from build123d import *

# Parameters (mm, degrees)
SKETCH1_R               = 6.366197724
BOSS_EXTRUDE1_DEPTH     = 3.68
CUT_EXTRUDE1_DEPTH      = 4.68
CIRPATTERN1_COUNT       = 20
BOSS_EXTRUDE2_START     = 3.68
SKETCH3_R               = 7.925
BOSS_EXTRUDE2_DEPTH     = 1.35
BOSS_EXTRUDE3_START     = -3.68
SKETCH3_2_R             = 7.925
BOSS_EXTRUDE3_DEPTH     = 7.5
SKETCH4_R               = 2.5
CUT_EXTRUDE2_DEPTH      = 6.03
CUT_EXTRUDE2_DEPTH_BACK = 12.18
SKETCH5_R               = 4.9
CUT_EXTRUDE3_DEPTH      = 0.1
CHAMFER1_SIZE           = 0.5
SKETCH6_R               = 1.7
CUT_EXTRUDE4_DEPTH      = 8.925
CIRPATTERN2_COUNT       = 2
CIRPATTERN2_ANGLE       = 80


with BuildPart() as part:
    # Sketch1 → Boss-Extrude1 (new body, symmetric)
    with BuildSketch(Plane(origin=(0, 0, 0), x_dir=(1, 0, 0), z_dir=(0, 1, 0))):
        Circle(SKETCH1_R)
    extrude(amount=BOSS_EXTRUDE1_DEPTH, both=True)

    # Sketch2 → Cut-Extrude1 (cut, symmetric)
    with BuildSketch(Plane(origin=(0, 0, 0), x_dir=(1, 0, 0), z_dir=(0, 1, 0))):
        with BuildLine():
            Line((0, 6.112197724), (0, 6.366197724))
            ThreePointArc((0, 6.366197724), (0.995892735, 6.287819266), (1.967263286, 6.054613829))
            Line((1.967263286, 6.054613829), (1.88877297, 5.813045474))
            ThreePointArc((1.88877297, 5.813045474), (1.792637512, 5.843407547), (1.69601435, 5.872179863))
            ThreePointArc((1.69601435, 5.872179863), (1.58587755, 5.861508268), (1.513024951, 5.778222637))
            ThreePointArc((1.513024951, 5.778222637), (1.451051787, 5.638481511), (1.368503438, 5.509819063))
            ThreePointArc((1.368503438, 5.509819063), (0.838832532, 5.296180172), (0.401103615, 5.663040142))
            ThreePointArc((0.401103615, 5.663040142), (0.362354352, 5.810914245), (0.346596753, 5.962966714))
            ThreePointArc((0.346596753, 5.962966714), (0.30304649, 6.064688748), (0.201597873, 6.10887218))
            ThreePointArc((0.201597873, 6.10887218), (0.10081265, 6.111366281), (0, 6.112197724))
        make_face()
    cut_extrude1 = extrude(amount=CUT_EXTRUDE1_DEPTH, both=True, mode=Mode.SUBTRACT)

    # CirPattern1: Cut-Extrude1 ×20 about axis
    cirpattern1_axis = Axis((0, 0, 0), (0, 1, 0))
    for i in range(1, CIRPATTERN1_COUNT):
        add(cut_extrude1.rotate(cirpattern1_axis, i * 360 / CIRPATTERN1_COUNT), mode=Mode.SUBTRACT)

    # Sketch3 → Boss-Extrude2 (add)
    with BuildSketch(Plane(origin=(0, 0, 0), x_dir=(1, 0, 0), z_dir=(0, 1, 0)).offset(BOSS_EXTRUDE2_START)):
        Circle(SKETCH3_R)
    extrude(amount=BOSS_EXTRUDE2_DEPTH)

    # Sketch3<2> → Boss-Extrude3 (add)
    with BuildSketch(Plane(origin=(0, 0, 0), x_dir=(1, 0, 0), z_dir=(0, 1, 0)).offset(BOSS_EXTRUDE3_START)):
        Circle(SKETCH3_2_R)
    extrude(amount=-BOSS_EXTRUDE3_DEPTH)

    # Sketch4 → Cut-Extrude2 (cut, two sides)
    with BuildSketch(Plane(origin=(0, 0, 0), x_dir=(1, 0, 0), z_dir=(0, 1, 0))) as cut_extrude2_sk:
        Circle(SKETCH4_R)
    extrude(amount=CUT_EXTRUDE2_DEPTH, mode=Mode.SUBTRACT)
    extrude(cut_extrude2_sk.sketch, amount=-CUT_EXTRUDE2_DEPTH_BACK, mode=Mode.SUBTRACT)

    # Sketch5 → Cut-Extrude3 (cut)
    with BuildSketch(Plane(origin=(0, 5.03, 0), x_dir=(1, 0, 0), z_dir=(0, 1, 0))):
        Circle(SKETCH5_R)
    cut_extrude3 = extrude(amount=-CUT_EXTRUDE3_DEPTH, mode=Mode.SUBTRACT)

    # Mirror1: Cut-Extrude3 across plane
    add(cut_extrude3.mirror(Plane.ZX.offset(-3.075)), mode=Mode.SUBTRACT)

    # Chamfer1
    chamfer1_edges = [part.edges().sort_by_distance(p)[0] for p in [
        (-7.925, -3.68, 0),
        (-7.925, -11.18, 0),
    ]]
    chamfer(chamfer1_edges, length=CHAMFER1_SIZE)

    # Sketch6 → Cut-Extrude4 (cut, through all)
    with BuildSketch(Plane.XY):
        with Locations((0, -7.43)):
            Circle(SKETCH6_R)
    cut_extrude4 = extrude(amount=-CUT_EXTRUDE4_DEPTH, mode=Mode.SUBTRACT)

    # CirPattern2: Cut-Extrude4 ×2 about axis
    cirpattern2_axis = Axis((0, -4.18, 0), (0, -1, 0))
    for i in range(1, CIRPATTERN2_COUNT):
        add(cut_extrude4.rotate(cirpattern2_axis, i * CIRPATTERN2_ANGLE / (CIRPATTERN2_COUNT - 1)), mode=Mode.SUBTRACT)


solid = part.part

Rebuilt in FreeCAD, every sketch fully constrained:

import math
import FreeCAD as App
import Part
import Sketcher
from FreeCAD import Vector
Q = App.Units.Quantity


def edges_at(feature, points):
    """Names of the edges that pass closest to the given points."""
    edges = feature.Shape.Edges
    near = lambda p: min(range(len(edges)), key=lambda i: edges[i].distToShape(Part.Vertex(*p))[0])
    return sorted({f"Edge{near(p) + 1}" for p in points})

doc = App.newDocument("Part")
body = doc.addObject("PartDesign::Body", "Body")

# Sketch on XZ plane
sketch1 = body.newObject("Sketcher::SketchObject", "Sketch")
sketch1.AttachmentSupport = (doc.getObject("XZ_Plane"), [""])
sketch1.MapMode = "FlatFace"
sketch1.addGeometry(Part.Circle(Vector(0, 0, 0), Vector(0, 0, 1), 6), False)
sketch1.addConstraint(Sketcher.Constraint("Coincident", 0, 3, -1, 1))
sketch1.addConstraint(Sketcher.Constraint("Diameter", 0, 12.732395))
pad1 = body.newObject("PartDesign::Pad", "Pad")
pad1.Profile = sketch1
pad1.Length = 7.36
pad1.Midplane = True

# Sketch on XZ plane
sketch2 = body.newObject("Sketcher::SketchObject", "Sketch001")
sketch2.AttachmentSupport = (doc.getObject("XZ_Plane"), [""])
sketch2.MapMode = "FlatFace"
sketch2.addGeometry(Part.LineSegment(Vector(0, -6.37, 0), Vector(0, -6.11, 0)), False)
sketch2.addGeometry(Part.ArcOfCircle(Part.Circle(Vector(0, 0, 0), Vector(0, 0, 1), 6.11), math.radians(-90), math.radians(-88.11)), False)
sketch2.addGeometry(Part.ArcOfCircle(Part.Circle(Vector(0.2, -5.96, 0), Vector(0, 0, 1), 0.15), math.radians(-88), math.radians(-2)), False)
sketch2.addGeometry(Part.ArcOfCircle(Part.Circle(Vector(1.35, -5.99, 0), Vector(0, 0, 1), 1), math.radians(160.93), math.radians(178.47)), False)
sketch2.addGeometry(Part.ArcOfCircle(Part.Circle(Vector(0.93, -5.84, 0), Vector(0, 0, 1), 0.56), math.radians(37), math.radians(161)), False)
sketch2.addGeometry(Part.ArcOfCircle(Part.Circle(Vector(0.57, -6.11, 0), Vector(0, 0, 1), 1), math.radians(19.53), math.radians(37.07)), False)
sketch2.addGeometry(Part.ArcOfCircle(Part.Circle(Vector(1.65, -5.73, 0), Vector(0, 0, 1), 0.15), math.radians(-160), math.radians(-74)), False)
sketch2.addGeometry(Part.ArcOfCircle(Part.Circle(Vector(0, 0, 0), Vector(0, 0, 1), 6.11), math.radians(-73.89), math.radians(-72)), False)
sketch2.addGeometry(Part.LineSegment(Vector(1.89, -5.81, 0), Vector(1.97, -6.05, 0)), False)
sketch2.addGeometry(Part.ArcOfCircle(Part.Circle(Vector(0, 0, 0), Vector(0, 0, 1), 6.37), math.radians(-90), math.radians(-72)), False)
sketch2.addConstraint(Sketcher.Constraint("Coincident", 0, 2, 1, 1))
sketch2.addConstraint(Sketcher.Constraint("Tangent", 1, 2, 2, 1))
sketch2.addConstraint(Sketcher.Constraint("Tangent", 2, 2, 3, 2))
sketch2.addConstraint(Sketcher.Constraint("Tangent", 3, 1, 4, 2))
sketch2.addConstraint(Sketcher.Constraint("Tangent", 4, 1, 5, 2))
sketch2.addConstraint(Sketcher.Constraint("Tangent", 5, 1, 6, 1))
sketch2.addConstraint(Sketcher.Constraint("Tangent", 6, 2, 7, 1))
sketch2.addConstraint(Sketcher.Constraint("Coincident", 7, 2, 8, 1))
sketch2.addConstraint(Sketcher.Constraint("Coincident", 8, 2, 9, 2))
sketch2.addConstraint(Sketcher.Constraint("Coincident", 9, 1, 0, 1))
sketch2.addConstraint(Sketcher.Constraint("Vertical", 0))
sketch2.addConstraint(Sketcher.Constraint("Coincident", 1, 3, -1, 1))
sketch2.addConstraint(Sketcher.Constraint("Coincident", 7, 3, -1, 1))
sketch2.addConstraint(Sketcher.Constraint("Coincident", 9, 3, -1, 1))
sketch2.addConstraint(Sketcher.Constraint("Equal", 3, 5))
sketch2.addConstraint(Sketcher.Constraint("Equal", 2, 6))
sketch2.addConstraint(Sketcher.Constraint("Equal", 1, 7))
sketch2.addConstraint(Sketcher.Constraint("PointOnObject", 0, 2, -2))
sketch2.addConstraint(Sketcher.Constraint("Radius", 3, 1.0))
sketch2.addConstraint(Sketcher.Constraint("Angle", 8, Q("-72 deg")))
sketch2.addConstraint(Sketcher.Constraint("Radius", 2, 0.15))
sketch2.addConstraint(Sketcher.Constraint("Radius", 4, 0.555))
sketch2.addConstraint(Sketcher.Constraint("Radius", 1, 6.112201))
sketch2.addConstraint(Sketcher.Constraint("DistanceY", 0, 1, 0, 2, 0.254))
sketch2.addConstraint(Sketcher.Constraint("DistanceY", 5, 3, 1, 2, 0.0037))
sketch2.addConstraint(Sketcher.Constraint("DistanceY", 3, 3, 4, 1, 0.4799))
sketch2.addConstraint(Sketcher.Constraint("DistanceX", 3, 1, 4, 1, 0.9674))
sketch2.addConstraint(Sketcher.Constraint("DistanceX", -1, 1, 2, 3, 0.19665))
sketch2.addConstraint(Sketcher.Constraint("DistanceX", 6, 2, 7, 2, 0.192759))
pocket1 = body.newObject("PartDesign::Pocket", "Pocket")
pocket1.Profile = sketch2
pocket1.Length = 9.36
pocket1.Midplane = True
doc.recompute()

polarpattern = body.newObject("PartDesign::PolarPattern", "PolarPattern")
polarpattern.Originals = [pocket1]
polarpattern.Axis = (doc.getObject("Y_Axis"), [""])
polarpattern.Angle = 360
polarpattern.Occurrences = 20
body.Tip = polarpattern

# Sketch on XZ plane
sketch3 = body.newObject("Sketcher::SketchObject", "Sketch002")
sketch3.AttachmentSupport = (doc.getObject("XZ_Plane"), [""])
sketch3.MapMode = "FlatFace"
sketch3.AttachmentOffset = App.Placement(Vector(0, 0, -3.68), App.Rotation())
sketch3.addGeometry(Part.Circle(Vector(0, 0, 0), Vector(0, 0, 1), 8), False)
sketch3.addConstraint(Sketcher.Constraint("Coincident", 0, 3, -1, 1))
sketch3.addConstraint(Sketcher.Constraint("Diameter", 0, 15.85))
pad2 = body.newObject("PartDesign::Pad", "Pad001")
pad2.Profile = sketch3
pad2.Length = 1.35
pad2.Reversed = True

# Sketch on XZ plane
sketch4 = body.newObject("Sketcher::SketchObject", "Sketch003")
sketch4.AttachmentSupport = (doc.getObject("XZ_Plane"), [""])
sketch4.MapMode = "FlatFace"
sketch4.AttachmentOffset = App.Placement(Vector(0, 0, 3.68), App.Rotation())
sketch4.addGeometry(Part.Circle(Vector(0, 0, 0), Vector(0, 0, 1), 8), False)
sketch4.addConstraint(Sketcher.Constraint("Coincident", 0, 3, -1, 1))
sketch4.addConstraint(Sketcher.Constraint("Diameter", 0, 15.85))
pad3 = body.newObject("PartDesign::Pad", "Pad002")
pad3.Profile = sketch4
pad3.Length = 7.5

# Sketch on XZ plane
sketch5 = body.newObject("Sketcher::SketchObject", "Sketch004")
sketch5.AttachmentSupport = (doc.getObject("XZ_Plane"), [""])
sketch5.MapMode = "FlatFace"
sketch5.addGeometry(Part.Circle(Vector(0, 0, 0), Vector(0, 0, 1), 2.5), False)
sketch5.addConstraint(Sketcher.Constraint("Coincident", 0, 3, -1, 1))
sketch5.addConstraint(Sketcher.Constraint("Diameter", 0, 5.0))
pocket2 = body.newObject("PartDesign::Pocket", "Pocket001")
pocket2.Profile = sketch5
pocket2.Type = "ThroughAll"
pocket2.Midplane = True

# Sketch on XZ plane
sketch6 = body.newObject("Sketcher::SketchObject", "Sketch005")
sketch6.AttachmentSupport = (doc.getObject("XZ_Plane"), [""])
sketch6.MapMode = "FlatFace"
sketch6.AttachmentOffset = App.Placement(Vector(0, 0, -5.03), App.Rotation())
sketch6.addGeometry(Part.Circle(Vector(0, 0, 0), Vector(0, 0, 1), 4.9), False)
sketch6.addConstraint(Sketcher.Constraint("Coincident", 0, 3, -1, 1))
sketch6.addConstraint(Sketcher.Constraint("Diameter", 0, 9.8))
pocket3 = body.newObject("PartDesign::Pocket", "Pocket002")
pocket3.Profile = sketch6
pocket3.Length = 0.1
pocket3.Reversed = True
doc.recompute()

datumplane = body.newObject("PartDesign::Plane", "DatumPlane")
datumplane.AttachmentSupport = (doc.getObject("XZ_Plane"), [""])
datumplane.MapMode = "FlatFace"
datumplane.AttachmentOffset = App.Placement(Vector(0, 0, 3.075), App.Rotation())
mirrored = body.newObject("PartDesign::Mirrored", "Mirrored")
mirrored.Originals = [pocket3]
mirrored.MirrorPlane = (datumplane, [""])
body.Tip = mirrored
doc.recompute()

chamfer = body.newObject("PartDesign::Chamfer", "Chamfer")
chamfer.Base = (mirrored, edges_at(mirrored, [(-7.925, -3.68, 0), (-7.925, -11.18, 0)]))
chamfer.Size = 0.5

# Sketch on XY plane
sketch7 = body.newObject("Sketcher::SketchObject", "Sketch006")
sketch7.AttachmentSupport = (doc.getObject("XY_Plane"), [""])
sketch7.MapMode = "FlatFace"
sketch7.addGeometry(Part.Circle(Vector(0, -7.4, 0), Vector(0, 0, 1), 1.7), False)
sketch7.addConstraint(Sketcher.Constraint("PointOnObject", 0, 3, -2))
sketch7.addConstraint(Sketcher.Constraint("Diameter", 0, 3.4))
sketch7.addConstraint(Sketcher.Constraint("DistanceY", 0, 3, -1, 1, 7.43))
pocket4 = body.newObject("PartDesign::Pocket", "Pocket003")
pocket4.Profile = sketch7
pocket4.Type = "ThroughAll"
doc.recompute()

polarpattern2 = body.newObject("PartDesign::PolarPattern", "PolarPattern001")
polarpattern2.Originals = [pocket4]
polarpattern2.Axis = (doc.getObject("Y_Axis"), [""])
polarpattern2.Angle = 80
polarpattern2.Occurrences = 2
polarpattern2.Reversed = True
body.Tip = polarpattern2

doc.recompute()
